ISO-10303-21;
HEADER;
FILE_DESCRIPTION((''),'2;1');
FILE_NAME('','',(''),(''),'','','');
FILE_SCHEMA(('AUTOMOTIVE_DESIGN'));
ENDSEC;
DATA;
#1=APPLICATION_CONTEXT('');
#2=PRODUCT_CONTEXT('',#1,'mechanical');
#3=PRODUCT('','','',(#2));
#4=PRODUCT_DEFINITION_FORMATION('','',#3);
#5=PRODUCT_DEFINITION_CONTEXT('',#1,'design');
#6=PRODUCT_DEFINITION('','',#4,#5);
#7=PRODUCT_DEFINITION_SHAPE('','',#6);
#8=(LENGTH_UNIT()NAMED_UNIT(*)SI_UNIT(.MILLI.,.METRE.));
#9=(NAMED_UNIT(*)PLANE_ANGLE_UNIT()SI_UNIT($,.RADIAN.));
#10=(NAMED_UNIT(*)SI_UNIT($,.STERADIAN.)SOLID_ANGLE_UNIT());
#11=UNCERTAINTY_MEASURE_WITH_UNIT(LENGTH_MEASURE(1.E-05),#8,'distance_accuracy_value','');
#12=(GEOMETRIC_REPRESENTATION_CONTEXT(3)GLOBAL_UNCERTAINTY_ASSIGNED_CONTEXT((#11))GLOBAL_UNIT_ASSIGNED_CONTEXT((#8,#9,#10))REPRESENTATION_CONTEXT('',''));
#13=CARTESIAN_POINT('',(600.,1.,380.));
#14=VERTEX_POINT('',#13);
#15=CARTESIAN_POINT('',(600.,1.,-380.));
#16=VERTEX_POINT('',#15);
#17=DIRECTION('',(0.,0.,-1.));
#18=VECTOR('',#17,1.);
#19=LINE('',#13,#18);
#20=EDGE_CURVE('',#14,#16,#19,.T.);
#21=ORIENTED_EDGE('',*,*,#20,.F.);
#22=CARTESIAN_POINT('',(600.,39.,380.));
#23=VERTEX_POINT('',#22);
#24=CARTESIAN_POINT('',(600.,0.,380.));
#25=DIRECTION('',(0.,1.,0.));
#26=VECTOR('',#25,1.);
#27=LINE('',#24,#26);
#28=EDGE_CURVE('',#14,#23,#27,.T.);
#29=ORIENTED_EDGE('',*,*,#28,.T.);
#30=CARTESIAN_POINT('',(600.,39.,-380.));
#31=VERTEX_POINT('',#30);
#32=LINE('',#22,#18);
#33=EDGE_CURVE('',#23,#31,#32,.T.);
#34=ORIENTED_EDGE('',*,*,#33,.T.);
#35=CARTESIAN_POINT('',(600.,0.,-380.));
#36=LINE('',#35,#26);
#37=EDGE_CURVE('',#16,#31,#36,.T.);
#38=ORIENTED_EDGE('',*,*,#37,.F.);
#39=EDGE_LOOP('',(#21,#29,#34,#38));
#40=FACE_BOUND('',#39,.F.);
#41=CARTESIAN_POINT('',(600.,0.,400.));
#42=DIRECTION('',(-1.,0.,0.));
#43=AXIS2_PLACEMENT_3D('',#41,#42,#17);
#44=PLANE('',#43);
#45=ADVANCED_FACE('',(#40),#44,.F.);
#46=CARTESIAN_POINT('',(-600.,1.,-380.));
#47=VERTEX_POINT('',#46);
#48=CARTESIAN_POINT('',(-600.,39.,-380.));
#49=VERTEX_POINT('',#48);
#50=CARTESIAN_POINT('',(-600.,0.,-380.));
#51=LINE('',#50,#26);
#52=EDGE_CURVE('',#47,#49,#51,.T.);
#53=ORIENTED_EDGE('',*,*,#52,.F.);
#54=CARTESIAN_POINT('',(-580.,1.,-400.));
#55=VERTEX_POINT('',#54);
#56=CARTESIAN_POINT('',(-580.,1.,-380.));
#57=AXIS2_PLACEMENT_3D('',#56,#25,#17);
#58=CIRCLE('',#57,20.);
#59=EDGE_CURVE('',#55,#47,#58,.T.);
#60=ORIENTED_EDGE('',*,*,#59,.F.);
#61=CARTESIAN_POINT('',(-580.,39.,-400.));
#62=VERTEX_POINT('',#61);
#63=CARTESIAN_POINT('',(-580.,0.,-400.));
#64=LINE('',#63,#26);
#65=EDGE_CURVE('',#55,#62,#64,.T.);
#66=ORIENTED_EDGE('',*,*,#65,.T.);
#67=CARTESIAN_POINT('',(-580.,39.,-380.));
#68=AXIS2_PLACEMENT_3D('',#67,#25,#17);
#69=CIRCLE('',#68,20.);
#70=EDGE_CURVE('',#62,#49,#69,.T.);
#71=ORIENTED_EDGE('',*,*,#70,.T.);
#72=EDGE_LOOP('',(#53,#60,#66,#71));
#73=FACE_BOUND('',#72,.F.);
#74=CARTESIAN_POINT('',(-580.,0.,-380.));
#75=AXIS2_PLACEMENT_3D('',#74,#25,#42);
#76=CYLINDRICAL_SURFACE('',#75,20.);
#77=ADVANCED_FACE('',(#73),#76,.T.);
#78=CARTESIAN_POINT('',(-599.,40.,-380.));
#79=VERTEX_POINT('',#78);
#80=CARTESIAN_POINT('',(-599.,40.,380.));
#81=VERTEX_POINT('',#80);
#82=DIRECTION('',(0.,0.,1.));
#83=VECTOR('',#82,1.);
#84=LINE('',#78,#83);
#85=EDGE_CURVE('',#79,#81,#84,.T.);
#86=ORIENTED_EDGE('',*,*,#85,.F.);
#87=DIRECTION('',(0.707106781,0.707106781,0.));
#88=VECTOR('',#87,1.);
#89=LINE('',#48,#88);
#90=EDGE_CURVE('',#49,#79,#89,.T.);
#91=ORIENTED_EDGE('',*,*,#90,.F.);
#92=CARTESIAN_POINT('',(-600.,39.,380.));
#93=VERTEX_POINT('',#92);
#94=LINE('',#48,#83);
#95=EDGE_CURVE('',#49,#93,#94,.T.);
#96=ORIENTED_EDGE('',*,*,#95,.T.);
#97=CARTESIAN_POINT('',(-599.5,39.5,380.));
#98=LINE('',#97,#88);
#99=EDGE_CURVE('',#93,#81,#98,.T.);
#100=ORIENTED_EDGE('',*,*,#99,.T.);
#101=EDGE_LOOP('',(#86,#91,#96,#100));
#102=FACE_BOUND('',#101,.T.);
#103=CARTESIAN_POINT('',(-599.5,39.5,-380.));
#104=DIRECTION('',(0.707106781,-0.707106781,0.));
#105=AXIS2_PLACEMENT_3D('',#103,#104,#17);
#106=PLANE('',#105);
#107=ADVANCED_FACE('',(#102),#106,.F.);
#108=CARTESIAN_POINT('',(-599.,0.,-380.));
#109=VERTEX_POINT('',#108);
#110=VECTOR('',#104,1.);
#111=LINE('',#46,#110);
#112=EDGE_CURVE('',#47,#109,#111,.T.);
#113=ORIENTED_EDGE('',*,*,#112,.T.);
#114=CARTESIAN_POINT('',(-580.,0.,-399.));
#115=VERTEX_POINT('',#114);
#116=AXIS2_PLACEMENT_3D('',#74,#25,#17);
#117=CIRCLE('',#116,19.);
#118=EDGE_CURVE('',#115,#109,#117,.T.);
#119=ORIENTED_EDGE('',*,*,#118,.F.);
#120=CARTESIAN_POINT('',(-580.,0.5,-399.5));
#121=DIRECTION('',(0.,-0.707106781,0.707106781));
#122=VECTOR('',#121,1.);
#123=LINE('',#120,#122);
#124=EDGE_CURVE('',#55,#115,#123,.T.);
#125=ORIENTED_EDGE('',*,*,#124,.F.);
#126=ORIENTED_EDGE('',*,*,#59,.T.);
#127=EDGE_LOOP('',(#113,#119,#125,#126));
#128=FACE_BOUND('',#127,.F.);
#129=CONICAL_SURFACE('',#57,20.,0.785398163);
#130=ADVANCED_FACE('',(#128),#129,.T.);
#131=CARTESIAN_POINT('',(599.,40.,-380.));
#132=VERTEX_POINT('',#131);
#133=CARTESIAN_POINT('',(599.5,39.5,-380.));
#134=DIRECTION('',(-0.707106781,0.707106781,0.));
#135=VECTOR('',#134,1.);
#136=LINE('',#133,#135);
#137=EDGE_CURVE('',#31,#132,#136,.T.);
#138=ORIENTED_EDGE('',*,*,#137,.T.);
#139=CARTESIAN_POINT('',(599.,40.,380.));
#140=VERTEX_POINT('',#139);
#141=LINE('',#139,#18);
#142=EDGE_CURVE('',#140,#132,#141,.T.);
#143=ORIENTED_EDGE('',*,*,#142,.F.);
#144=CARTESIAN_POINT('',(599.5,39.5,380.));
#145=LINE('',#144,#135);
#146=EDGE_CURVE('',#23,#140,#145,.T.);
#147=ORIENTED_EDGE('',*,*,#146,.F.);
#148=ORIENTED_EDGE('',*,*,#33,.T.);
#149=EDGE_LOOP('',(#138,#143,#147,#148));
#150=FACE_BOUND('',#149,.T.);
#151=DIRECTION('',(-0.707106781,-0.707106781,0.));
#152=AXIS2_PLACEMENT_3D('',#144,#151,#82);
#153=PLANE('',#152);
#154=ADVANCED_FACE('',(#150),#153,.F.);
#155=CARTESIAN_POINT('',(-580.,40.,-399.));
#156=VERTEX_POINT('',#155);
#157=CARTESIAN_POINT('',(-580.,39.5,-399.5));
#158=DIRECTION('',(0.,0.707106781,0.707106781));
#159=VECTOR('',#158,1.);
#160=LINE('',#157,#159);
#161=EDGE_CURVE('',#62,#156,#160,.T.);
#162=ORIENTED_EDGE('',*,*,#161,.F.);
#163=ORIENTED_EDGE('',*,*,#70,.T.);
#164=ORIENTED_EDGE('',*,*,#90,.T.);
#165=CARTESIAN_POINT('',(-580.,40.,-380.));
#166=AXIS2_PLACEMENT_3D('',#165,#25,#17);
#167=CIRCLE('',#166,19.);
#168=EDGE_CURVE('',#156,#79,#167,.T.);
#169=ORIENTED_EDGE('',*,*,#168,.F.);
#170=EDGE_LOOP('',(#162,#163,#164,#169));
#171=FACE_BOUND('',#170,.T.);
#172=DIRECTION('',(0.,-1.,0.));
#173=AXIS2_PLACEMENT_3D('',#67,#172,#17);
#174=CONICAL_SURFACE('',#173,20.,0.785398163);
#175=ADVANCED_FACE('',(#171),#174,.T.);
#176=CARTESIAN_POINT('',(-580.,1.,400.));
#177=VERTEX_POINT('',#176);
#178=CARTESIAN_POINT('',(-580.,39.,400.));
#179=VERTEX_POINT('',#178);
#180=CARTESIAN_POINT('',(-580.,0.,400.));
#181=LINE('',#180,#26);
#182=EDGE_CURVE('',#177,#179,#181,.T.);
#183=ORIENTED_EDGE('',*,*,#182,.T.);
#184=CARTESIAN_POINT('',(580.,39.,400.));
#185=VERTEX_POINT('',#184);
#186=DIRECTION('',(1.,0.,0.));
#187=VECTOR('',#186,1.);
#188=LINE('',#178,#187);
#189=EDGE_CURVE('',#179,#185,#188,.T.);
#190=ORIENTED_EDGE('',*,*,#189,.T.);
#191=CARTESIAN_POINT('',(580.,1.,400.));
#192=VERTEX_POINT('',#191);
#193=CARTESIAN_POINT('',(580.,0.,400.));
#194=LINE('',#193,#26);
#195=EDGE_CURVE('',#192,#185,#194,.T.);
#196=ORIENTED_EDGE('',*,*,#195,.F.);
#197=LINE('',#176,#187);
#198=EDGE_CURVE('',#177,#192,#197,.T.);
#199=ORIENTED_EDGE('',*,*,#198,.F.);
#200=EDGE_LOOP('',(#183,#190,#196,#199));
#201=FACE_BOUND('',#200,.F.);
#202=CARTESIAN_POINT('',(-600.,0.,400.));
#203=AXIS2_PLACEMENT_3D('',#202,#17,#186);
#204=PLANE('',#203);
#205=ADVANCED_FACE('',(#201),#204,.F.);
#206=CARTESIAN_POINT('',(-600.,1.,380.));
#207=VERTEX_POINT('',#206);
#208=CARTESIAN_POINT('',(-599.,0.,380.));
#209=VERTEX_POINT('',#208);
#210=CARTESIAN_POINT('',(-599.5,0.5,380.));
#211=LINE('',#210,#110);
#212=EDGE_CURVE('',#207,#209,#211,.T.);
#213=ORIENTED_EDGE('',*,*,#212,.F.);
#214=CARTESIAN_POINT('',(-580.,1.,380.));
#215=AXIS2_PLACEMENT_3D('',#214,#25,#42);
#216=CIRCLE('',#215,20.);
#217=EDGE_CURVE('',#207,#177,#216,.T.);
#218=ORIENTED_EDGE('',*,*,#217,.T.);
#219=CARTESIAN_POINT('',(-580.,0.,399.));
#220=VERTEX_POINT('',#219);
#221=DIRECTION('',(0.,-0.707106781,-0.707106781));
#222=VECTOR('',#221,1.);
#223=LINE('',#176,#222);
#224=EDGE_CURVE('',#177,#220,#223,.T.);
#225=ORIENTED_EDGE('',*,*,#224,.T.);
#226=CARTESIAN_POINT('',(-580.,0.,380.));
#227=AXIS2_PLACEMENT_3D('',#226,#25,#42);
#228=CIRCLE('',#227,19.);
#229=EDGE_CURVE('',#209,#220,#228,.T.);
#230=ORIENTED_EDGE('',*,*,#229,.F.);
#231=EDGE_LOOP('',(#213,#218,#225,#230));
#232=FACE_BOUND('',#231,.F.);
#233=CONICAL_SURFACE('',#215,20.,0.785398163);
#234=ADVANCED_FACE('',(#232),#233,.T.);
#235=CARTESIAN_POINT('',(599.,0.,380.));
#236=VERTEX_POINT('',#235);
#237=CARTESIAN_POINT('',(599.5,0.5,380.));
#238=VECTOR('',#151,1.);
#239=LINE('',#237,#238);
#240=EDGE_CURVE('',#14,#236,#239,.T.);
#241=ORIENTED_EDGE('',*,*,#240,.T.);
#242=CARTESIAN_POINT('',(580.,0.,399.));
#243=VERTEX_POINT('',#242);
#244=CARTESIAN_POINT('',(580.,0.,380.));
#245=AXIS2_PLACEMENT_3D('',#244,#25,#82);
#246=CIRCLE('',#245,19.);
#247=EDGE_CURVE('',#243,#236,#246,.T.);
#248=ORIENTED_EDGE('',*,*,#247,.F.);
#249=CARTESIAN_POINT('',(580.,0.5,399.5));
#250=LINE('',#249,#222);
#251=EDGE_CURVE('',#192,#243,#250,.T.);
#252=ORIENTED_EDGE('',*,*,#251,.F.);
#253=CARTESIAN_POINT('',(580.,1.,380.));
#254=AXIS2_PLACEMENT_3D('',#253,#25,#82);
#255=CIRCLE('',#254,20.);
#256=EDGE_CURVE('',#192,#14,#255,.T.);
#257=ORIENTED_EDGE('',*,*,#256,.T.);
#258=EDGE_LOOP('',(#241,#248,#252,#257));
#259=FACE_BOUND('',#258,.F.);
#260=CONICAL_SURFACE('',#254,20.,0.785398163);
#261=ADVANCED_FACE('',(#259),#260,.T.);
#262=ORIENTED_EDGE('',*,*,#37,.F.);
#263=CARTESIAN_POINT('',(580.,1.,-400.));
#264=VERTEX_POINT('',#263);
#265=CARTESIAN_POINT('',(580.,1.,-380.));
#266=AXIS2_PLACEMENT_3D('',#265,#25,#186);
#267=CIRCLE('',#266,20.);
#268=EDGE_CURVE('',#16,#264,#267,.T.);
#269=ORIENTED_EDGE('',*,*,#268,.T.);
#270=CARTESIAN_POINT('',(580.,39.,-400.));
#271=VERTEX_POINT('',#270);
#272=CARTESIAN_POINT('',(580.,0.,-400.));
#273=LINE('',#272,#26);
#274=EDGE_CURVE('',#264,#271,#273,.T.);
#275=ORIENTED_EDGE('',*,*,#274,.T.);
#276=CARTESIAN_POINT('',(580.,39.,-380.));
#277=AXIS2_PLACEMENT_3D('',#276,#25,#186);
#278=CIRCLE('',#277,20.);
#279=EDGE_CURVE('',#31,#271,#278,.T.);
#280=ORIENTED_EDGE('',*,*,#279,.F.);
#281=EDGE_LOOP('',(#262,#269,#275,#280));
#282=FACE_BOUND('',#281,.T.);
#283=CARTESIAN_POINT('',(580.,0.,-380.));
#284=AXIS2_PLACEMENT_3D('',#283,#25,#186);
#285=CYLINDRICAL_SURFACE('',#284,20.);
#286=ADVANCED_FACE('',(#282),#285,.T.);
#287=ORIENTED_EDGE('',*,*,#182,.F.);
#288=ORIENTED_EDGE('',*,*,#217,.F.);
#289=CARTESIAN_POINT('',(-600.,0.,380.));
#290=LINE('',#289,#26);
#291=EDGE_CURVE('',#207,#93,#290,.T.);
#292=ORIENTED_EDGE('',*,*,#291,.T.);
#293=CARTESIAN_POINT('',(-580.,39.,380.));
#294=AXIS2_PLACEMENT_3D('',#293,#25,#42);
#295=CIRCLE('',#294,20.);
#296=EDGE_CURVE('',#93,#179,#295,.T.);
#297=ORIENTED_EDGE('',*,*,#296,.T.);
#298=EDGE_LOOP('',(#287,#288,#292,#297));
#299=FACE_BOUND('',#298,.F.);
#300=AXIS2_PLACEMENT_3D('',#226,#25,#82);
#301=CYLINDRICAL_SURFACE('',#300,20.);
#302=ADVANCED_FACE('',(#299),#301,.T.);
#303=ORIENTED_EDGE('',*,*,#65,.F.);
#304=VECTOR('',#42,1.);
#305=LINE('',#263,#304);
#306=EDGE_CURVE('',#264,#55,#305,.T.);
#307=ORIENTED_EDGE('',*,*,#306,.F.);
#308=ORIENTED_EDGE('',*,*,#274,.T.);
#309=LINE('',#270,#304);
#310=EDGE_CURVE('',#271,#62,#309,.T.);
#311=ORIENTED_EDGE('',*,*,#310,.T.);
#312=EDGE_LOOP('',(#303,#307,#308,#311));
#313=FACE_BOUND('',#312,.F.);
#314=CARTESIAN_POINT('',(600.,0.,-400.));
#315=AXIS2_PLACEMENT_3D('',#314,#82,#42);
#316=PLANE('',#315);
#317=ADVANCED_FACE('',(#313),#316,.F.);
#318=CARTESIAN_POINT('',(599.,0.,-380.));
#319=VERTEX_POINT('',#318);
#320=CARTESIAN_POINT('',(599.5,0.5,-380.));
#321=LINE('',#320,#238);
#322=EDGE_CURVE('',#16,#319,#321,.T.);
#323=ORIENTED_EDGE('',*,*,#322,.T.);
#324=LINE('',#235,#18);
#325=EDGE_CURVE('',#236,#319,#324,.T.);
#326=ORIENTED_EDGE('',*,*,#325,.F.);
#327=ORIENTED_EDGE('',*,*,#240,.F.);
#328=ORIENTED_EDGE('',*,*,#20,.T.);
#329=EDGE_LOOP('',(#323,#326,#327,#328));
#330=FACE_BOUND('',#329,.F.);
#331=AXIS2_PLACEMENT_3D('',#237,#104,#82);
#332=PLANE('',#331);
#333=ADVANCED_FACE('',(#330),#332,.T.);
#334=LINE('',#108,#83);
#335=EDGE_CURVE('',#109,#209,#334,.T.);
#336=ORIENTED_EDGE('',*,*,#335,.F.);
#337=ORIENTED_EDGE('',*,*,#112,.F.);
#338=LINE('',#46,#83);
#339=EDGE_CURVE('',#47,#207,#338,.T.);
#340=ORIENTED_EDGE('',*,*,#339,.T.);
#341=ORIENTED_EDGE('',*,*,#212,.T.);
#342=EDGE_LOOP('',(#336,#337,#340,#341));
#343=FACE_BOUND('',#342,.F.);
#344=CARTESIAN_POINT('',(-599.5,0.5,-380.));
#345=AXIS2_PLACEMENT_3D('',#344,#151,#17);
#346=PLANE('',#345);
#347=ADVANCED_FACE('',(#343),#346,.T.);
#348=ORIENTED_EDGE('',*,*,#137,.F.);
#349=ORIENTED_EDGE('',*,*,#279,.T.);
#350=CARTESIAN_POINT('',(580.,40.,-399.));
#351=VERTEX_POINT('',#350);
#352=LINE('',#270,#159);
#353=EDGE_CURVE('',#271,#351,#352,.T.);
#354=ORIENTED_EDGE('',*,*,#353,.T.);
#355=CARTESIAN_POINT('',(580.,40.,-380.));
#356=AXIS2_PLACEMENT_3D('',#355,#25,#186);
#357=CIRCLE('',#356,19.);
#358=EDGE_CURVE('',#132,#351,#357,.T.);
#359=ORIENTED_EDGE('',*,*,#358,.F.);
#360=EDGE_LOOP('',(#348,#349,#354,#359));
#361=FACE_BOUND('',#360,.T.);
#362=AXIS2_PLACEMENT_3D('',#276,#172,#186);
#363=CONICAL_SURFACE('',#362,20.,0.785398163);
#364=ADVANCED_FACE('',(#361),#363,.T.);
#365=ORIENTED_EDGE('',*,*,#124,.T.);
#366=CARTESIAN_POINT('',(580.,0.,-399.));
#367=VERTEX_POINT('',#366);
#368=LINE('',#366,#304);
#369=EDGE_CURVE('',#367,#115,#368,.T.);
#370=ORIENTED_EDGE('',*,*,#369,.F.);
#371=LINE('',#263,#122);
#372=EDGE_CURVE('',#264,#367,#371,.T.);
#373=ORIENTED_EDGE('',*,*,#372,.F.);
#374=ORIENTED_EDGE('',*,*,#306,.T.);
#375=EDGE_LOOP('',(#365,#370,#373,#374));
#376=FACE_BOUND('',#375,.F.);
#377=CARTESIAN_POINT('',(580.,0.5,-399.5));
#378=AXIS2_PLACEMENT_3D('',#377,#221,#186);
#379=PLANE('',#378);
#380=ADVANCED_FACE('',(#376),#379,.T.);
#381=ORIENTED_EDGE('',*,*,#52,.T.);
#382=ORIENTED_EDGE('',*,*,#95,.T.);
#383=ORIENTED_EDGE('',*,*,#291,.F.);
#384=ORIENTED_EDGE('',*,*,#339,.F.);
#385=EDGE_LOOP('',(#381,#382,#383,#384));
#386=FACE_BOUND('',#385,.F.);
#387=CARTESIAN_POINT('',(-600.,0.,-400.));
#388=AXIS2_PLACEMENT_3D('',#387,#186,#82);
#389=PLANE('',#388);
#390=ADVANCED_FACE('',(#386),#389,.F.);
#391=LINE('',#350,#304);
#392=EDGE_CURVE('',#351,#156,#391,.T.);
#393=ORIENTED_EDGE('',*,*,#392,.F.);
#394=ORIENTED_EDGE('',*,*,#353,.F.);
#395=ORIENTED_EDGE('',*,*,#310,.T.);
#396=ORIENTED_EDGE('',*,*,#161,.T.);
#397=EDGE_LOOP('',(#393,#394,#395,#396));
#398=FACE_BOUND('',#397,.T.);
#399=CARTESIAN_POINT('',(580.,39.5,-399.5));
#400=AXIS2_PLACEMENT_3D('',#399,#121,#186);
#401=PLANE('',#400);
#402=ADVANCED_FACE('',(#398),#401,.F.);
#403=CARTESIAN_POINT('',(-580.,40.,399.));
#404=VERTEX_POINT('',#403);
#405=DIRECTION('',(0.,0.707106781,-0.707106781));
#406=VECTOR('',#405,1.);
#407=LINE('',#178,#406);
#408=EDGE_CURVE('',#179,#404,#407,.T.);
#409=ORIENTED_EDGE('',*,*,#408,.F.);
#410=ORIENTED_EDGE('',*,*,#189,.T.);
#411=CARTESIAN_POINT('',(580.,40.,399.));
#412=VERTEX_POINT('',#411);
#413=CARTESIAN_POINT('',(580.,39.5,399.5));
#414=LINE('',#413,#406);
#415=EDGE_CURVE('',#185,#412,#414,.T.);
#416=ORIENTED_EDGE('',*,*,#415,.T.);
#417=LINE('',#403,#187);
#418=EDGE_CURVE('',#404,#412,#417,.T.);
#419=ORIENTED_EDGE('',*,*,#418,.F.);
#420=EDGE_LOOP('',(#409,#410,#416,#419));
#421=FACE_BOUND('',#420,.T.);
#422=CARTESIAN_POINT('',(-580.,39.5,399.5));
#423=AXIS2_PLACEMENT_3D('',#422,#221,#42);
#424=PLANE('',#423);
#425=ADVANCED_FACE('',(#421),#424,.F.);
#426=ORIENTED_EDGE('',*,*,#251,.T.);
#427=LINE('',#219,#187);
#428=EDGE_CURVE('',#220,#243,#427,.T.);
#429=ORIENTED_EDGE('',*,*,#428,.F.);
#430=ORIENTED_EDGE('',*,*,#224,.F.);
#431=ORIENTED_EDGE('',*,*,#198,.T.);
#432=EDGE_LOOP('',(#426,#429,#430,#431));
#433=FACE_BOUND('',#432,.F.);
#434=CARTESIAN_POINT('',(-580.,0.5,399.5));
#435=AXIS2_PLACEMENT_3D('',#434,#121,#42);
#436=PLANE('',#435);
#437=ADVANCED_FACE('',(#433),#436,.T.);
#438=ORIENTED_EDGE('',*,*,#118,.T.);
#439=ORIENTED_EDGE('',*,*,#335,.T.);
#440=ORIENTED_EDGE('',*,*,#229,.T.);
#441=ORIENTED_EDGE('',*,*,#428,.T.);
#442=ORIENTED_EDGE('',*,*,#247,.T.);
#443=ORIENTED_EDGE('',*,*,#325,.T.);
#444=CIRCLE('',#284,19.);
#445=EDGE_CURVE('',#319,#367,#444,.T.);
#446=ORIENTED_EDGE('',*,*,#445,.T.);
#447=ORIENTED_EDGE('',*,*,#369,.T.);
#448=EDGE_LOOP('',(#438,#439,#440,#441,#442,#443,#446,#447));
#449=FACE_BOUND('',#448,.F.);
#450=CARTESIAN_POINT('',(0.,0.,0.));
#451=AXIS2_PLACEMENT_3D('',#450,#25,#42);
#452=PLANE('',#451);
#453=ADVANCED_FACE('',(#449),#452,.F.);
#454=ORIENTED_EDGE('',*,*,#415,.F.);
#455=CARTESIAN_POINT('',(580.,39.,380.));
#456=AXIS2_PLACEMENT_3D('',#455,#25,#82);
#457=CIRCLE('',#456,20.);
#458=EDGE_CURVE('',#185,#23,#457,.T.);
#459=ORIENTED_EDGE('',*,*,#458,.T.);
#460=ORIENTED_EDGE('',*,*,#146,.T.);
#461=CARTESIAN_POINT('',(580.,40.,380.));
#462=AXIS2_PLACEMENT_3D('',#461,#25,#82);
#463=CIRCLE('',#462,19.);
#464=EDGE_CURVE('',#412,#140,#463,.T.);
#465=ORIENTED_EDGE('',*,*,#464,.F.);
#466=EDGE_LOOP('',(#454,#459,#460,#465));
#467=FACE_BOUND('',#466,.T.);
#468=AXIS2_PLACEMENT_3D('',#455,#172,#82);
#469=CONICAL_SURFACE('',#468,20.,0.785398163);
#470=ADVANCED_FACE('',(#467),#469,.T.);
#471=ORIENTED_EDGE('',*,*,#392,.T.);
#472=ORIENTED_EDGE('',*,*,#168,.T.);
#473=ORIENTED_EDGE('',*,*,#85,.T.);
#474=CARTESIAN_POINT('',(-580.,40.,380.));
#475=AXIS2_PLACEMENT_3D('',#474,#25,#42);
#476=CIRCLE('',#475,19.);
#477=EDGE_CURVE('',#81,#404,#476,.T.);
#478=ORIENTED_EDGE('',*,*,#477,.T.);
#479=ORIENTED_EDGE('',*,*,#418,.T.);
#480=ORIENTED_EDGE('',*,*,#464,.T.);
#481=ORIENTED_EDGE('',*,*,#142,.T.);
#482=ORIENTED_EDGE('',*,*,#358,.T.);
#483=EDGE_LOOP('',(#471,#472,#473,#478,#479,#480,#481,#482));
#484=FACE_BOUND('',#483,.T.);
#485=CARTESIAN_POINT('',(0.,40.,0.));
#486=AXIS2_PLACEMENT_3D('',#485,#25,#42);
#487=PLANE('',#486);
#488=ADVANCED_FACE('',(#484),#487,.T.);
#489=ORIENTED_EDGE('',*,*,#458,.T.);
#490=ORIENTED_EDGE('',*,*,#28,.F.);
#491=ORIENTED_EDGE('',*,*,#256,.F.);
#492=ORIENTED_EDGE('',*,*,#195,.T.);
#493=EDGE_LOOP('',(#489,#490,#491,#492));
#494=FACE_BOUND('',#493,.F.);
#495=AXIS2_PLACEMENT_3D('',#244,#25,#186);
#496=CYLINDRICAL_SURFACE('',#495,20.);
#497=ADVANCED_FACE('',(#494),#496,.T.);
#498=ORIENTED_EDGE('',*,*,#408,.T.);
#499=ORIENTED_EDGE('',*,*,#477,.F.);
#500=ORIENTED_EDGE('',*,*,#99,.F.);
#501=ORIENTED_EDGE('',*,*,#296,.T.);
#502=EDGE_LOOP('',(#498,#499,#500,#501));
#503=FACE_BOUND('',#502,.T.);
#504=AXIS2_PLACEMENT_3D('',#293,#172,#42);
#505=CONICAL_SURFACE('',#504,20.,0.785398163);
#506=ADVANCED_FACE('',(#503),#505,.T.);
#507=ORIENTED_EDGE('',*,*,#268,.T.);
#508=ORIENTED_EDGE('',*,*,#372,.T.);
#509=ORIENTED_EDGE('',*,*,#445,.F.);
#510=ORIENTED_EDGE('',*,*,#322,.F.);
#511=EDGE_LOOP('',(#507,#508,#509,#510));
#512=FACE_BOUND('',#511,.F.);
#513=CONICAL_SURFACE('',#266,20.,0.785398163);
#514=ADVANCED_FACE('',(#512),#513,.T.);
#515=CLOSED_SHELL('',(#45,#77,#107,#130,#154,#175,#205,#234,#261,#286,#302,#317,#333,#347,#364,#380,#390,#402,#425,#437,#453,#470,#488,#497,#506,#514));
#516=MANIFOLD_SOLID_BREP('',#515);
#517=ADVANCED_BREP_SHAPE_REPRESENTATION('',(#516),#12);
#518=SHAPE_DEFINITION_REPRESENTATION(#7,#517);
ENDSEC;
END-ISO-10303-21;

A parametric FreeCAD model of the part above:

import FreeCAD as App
import Part
import Sketcher


def edges_at(feature, points):
    """Names of the edges that pass closest to the given points."""
    edges = feature.Shape.Edges
    near = lambda p: min(range(len(edges)), key=lambda i: edges[i].distToShape(Part.Vertex(*p))[0])
    return sorted({f"Edge{near(p) + 1}" for p in points})

doc = App.newDocument("Part")
body = doc.addObject("PartDesign::Body", "Body")

# Sketch on XZ plane
sketch1 = body.newObject("Sketcher::SketchObject", "Sketch")
sketch1.AttachmentSupport = (doc.getObject("XZ_Plane"), [""])
sketch1.MapMode = "FlatFace"
sketch1.addGeometry([
    Part.LineSegment(App.Vector(600, 400, 0), App.Vector(600, -400, 0)),
    Part.LineSegment(App.Vector(600, -400, 0), App.Vector(-600, -400, 0)),
    Part.LineSegment(App.Vector(-600, -400, 0), App.Vector(-600, 400, 0)),
    Part.LineSegment(App.Vector(-600, 400, 0), App.Vector(600, 400, 0)),
], False)
sketch1.addConstraint([
    Sketcher.Constraint("Coincident", 0, 2, 1, 1),
    Sketcher.Constraint("Coincident", 1, 2, 2, 1),
    Sketcher.Constraint("Coincident", 2, 2, 3, 1),
    Sketcher.Constraint("Coincident", 3, 2, 0, 1),
    Sketcher.Constraint("Vertical", 0),
    Sketcher.Constraint("Horizontal", 1),
    Sketcher.Constraint("Vertical", 2),
    Sketcher.Constraint("Horizontal", 3),
    Sketcher.Constraint("Symmetric", 0, 2, 2, 2, -1, 1),
    Sketcher.Constraint("DistanceX", 1, 2, 1, 1, 1200.0),
    Sketcher.Constraint("DistanceY", 0, 2, 0, 1, 800.0),
])
pad1 = body.newObject("PartDesign::Pad", "Pad")
pad1.Profile = sketch1
pad1.Length = 40
pad1.Reversed = True
doc.recompute()

fillet = body.newObject("PartDesign::Fillet", "Fillet")
fillet.Base = (pad1, edges_at(pad1, [
    (600, 20, -400),
    (600, 20, 400),
    (-600, 20, 400),
    (-600, 20, -400),
]))
fillet.Radius = 20
doc.recompute()

chamfer = body.newObject("PartDesign::Chamfer", "Chamfer")
chamfer.Base = (fillet, edges_at(fillet, [
    (600, 0, 0),
    (594.142, 0, -394.142),
    (0, 0, -400),
    (-594.142, 0, -394.142),
    (-600, 0, 0),
    (-594.142, 0, 394.142),
    (0, 0, 400),
    (594.142, 0, 394.142),
    (600, 40, 0),
    (594.142, 40, -394.142),
    (0, 40, -400),
    (-594.142, 40, -394.142),
    (-600, 40, 0),
    (-594.142, 40, 394.142),
    (0, 40, 400),
    (594.142, 40, 394.142),
]))
chamfer.Size = 1

doc.recompute()
